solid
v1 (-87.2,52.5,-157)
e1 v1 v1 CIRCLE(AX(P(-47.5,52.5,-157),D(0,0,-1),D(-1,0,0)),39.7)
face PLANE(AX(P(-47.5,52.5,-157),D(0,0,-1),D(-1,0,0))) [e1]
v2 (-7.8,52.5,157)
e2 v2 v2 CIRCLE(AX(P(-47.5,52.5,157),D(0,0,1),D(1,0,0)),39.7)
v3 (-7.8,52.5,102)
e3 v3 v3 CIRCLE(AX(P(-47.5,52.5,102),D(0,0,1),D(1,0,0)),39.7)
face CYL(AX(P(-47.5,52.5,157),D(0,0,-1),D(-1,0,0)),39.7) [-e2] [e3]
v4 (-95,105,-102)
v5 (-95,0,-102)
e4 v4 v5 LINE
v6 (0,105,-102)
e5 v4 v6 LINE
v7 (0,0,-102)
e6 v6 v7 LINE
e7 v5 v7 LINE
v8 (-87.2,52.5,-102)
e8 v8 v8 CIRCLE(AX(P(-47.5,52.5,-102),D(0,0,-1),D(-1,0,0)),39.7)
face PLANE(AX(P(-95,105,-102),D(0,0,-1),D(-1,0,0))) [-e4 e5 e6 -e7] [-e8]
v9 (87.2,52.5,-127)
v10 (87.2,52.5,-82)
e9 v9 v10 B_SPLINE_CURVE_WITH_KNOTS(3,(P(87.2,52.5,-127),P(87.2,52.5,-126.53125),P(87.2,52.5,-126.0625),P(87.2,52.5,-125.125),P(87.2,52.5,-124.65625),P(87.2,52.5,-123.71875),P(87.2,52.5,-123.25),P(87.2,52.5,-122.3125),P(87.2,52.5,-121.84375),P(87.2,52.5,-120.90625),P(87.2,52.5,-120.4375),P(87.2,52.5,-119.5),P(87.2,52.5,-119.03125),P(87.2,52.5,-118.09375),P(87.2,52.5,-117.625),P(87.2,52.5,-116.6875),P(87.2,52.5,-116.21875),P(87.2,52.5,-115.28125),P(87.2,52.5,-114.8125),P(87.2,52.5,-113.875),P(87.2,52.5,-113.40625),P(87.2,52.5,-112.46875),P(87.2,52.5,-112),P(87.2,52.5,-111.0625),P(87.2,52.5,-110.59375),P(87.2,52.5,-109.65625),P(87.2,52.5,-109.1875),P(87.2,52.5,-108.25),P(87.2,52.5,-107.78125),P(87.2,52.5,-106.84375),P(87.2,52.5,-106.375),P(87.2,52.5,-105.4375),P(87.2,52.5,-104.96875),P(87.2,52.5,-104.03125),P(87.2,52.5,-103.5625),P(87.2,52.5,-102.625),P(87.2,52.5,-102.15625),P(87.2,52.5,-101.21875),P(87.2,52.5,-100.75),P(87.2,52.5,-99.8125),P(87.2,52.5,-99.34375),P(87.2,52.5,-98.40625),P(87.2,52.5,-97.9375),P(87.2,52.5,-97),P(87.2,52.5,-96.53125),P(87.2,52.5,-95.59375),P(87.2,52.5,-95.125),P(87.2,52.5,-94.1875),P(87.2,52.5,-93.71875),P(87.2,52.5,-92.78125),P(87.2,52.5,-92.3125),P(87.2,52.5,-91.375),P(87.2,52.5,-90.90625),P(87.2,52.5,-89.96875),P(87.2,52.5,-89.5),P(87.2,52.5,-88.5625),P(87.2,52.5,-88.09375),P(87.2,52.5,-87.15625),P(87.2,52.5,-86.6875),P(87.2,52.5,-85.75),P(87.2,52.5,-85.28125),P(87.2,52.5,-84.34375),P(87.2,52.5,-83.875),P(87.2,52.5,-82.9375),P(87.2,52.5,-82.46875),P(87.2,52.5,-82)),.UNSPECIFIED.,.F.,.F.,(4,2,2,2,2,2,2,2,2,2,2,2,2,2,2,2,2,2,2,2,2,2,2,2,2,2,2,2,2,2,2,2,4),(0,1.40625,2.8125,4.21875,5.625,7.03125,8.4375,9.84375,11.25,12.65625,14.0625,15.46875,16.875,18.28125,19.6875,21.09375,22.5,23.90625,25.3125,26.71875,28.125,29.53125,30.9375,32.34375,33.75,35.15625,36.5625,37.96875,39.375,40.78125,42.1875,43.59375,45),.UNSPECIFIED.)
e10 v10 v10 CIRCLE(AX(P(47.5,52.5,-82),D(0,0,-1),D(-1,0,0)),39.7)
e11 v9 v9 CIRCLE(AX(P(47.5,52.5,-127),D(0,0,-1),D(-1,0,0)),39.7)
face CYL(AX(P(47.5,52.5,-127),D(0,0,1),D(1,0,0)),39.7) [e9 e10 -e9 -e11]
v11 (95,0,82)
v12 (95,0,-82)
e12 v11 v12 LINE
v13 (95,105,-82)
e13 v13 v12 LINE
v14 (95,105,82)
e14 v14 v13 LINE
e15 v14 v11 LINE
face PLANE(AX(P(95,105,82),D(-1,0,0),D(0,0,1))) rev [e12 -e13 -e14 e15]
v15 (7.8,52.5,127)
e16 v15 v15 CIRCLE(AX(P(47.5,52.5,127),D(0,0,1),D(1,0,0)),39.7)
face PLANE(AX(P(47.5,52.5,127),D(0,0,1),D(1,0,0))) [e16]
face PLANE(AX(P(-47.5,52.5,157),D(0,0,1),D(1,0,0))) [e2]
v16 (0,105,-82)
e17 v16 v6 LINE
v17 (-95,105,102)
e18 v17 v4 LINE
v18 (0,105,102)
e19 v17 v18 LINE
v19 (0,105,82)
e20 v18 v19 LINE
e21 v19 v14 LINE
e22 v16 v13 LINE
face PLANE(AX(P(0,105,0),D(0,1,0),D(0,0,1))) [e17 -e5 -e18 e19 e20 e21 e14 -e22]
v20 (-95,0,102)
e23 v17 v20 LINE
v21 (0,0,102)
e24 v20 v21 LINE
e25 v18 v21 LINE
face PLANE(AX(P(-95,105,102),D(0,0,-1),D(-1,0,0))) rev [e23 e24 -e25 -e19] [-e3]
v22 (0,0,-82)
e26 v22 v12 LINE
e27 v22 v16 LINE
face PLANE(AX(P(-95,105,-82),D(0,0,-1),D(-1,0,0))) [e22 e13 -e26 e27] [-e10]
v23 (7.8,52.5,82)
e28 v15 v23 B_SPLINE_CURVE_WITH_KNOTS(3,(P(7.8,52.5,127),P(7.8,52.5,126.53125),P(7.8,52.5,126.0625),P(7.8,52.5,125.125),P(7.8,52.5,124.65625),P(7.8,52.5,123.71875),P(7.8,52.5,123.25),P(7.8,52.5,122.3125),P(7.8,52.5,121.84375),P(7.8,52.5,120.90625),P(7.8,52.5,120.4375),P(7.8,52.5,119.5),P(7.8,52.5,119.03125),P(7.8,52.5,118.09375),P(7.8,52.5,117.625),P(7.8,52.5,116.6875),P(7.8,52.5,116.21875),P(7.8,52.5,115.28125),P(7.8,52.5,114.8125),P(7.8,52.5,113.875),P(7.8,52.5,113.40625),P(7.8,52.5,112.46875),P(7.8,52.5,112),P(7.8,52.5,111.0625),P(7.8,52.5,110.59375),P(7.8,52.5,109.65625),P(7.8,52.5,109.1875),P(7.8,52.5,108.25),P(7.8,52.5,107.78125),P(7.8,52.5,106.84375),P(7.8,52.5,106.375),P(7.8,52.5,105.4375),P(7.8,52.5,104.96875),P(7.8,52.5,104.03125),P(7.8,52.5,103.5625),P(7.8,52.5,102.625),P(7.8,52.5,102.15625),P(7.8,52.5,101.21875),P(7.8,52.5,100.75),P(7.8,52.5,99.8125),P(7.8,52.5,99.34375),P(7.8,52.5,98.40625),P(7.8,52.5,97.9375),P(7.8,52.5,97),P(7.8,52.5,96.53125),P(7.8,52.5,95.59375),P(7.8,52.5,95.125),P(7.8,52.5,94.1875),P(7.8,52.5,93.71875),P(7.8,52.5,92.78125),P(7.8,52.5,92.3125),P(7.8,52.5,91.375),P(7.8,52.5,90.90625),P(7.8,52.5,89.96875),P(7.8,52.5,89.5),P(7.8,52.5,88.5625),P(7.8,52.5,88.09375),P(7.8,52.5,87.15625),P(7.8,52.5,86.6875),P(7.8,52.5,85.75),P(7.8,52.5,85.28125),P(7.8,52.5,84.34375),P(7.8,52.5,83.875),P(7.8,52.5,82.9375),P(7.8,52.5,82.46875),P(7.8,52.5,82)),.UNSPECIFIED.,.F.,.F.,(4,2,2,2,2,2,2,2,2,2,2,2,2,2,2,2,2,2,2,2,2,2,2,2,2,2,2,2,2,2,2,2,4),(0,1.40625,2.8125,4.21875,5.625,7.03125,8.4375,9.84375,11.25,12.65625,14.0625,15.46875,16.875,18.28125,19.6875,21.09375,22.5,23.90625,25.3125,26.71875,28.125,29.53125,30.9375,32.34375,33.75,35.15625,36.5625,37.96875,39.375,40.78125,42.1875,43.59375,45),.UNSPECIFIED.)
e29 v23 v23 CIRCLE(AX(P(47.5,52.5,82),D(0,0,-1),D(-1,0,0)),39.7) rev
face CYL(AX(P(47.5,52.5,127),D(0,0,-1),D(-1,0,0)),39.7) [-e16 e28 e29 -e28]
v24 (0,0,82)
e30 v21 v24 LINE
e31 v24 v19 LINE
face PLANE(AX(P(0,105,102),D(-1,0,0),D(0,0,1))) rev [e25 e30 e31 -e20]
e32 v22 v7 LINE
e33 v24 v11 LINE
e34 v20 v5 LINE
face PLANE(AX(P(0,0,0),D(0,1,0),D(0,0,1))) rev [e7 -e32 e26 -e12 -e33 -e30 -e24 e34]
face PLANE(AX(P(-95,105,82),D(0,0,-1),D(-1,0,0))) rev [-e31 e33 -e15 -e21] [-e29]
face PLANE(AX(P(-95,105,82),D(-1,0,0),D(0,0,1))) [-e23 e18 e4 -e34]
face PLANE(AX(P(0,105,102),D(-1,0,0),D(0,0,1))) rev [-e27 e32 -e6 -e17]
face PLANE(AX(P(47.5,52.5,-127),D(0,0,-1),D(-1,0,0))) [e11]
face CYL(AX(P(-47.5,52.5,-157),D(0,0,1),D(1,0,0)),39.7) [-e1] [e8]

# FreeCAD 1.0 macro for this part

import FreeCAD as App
import Part
import Sketcher

doc = App.newDocument("Part")
body = doc.addObject("PartDesign::Body", "Body")

# Sketch on XZ plane
sketch1 = body.newObject("Sketcher::SketchObject", "Sketch")
sketch1.AttachmentSupport = (doc.getObject("XZ_Plane"), [""])
sketch1.MapMode = "FlatFace"
sketch1.addGeometry([
    Part.LineSegment(App.Vector(-95, -82, 0), App.Vector(-95, 82, 0)),
    Part.LineSegment(App.Vector(-95, 82, 0), App.Vector(95, 82, 0)),
    Part.LineSegment(App.Vector(95, 82, 0), App.Vector(95, -82, 0)),
    Part.LineSegment(App.Vector(95, -82, 0), App.Vector(-95, -82, 0)),
], False)
sketch1.addConstraint([
    Sketcher.Constraint("Coincident", 0, 2, 1, 1),
    Sketcher.Constraint("Coincident", 1, 2, 2, 1),
    Sketcher.Constraint("Coincident", 2, 2, 3, 1),
    Sketcher.Constraint("Coincident", 3, 2, 0, 1),
    Sketcher.Constraint("Vertical", 0),
    Sketcher.Constraint("Horizontal", 1),
    Sketcher.Constraint("Vertical", 2),
    Sketcher.Constraint("Horizontal", 3),
    Sketcher.Constraint("Symmetric", 0, 2, 2, 2, -1, 1),
    Sketcher.Constraint("DistanceX", 1, 1, 1, 2, 190.0),
    Sketcher.Constraint("DistanceY", 0, 1, 0, 2, 164.0),
])
pad1 = body.newObject("PartDesign::Pad", "Pad")
pad1.Profile = sketch1
pad1.Length = 105
pad1.Reversed = True

# Sketch on XZ plane
sketch2 = body.newObject("Sketcher::SketchObject", "Sketch001")
sketch2.AttachmentSupport = (doc.getObject("XZ_Plane"), [""])
sketch2.MapMode = "FlatFace"
sketch2.addGeometry([
    Part.LineSegment(App.Vector(-95, -102, 0), App.Vector(-95, 102, 0)),
    Part.LineSegment(App.Vector(-95, 102, 0), App.Vector(0, 102, 0)),
    Part.LineSegment(App.Vector(0, 102, 0), App.Vector(0, -102, 0)),
    Part.LineSegment(App.Vector(0, -102, 0), App.Vector(-95, -102, 0)),
], False)
sketch2.addConstraint([
    Sketcher.Constraint("Coincident", 0, 2, 1, 1),
    Sketcher.Constraint("Coincident", 1, 2, 2, 1),
    Sketcher.Constraint("Coincident", 2, 2, 3, 1),
    Sketcher.Constraint("Coincident", 3, 2, 0, 1),
    Sketcher.Constraint("Vertical", 0),
    Sketcher.Constraint("Horizontal", 1),
    Sketcher.Constraint("Vertical", 2),
    Sketcher.Constraint("Horizontal", 3),
    Sketcher.Constraint("Symmetric", 1, 2, 2, 2, -1, 1),
    Sketcher.Constraint("DistanceX", 1, 1, 1, 2, 95.0),
    Sketcher.Constraint("DistanceY", 0, 1, 0, 2, 204.0),
])
pad2 = body.newObject("PartDesign::Pad", "Pad001")
pad2.Profile = sketch2
pad2.Length = 105
pad2.Reversed = True

# Sketch on XY plane
sketch3 = body.newObject("Sketcher::SketchObject", "Sketch002")
sketch3.AttachmentSupport = (doc.getObject("XY_Plane"), [""])
sketch3.MapMode = "FlatFace"
sketch3.AttachmentOffset = App.Placement(App.Vector(0, 0, 102), App.Rotation())
sketch3.addGeometry(Part.Circle(App.Vector(-48, 52, 0), App.Vector(0, 0, 1), 40), False)
sketch3.addConstraint([
    Sketcher.Constraint("Diameter", 0, 79.4),
    Sketcher.Constraint("DistanceX", 0, 3, -1, 1, 47.5),
    Sketcher.Constraint("DistanceY", -1, 1, 0, 3, 52.5),
])
pad3 = body.newObject("PartDesign::Pad", "Pad002")
pad3.Profile = sketch3
pad3.Length = 55

# Sketch on XY plane
sketch4 = body.newObject("Sketcher::SketchObject", "Sketch003")
sketch4.AttachmentSupport = (doc.getObject("XY_Plane"), [""])
sketch4.MapMode = "FlatFace"
sketch4.AttachmentOffset = App.Placement(App.Vector(0, 0, 82), App.Rotation())
sketch4.addGeometry(Part.Circle(App.Vector(48, 52, 0), App.Vector(0, 0, 1), 40), False)
sketch4.addConstraint([
    Sketcher.Constraint("Diameter", 0, 79.4),
    Sketcher.Constraint("DistanceX", -1, 1, 0, 3, 47.5),
    Sketcher.Constraint("DistanceY", -1, 1, 0, 3, 52.5),
])
pad4 = body.newObject("PartDesign::Pad", "Pad003")
pad4.Profile = sketch4
pad4.Length = 45

# Sketch on XY plane
sketch5 = body.newObject("Sketcher::SketchObject", "Sketch004")
sketch5.AttachmentSupport = (doc.getObject("XY_Plane"), [""])
sketch5.MapMode = "FlatFace"
sketch5.AttachmentOffset = App.Placement(App.Vector(0, 0, -157), App.Rotation())
sketch5.addGeometry(Part.Circle(App.Vector(-48, 52, 0), App.Vector(0, 0, 1), 40), False)
sketch5.addConstraint([
    Sketcher.Constraint("Diameter", 0, 79.4),
    Sketcher.Constraint("DistanceX", 0, 3, -1, 1, 47.5),
    Sketcher.Constraint("DistanceY", -1, 1, 0, 3, 52.5),
])
pad5 = body.newObject("PartDesign::Pad", "Pad004")
pad5.Profile = sketch5
pad5.Length = 55

# Sketch on XY plane
sketch6 = body.newObject("Sketcher::SketchObject", "Sketch005")
sketch6.AttachmentSupport = (doc.getObject("XY_Plane"), [""])
sketch6.MapMode = "FlatFace"
sketch6.AttachmentOffset = App.Placement(App.Vector(0, 0, -127), App.Rotation())
sketch6.addGeometry(Part.Circle(App.Vector(48, 52, 0), App.Vector(0, 0, 1), 40), False)
sketch6.addConstraint([
    Sketcher.Constraint("Diameter", 0, 79.4),
    Sketcher.Constraint("DistanceX", -1, 1, 0, 3, 47.5),
    Sketcher.Constraint("DistanceY", -1, 1, 0, 3, 52.5),
])
pad6 = body.newObject("PartDesign::Pad", "Pad005")
pad6.Profile = sketch6
pad6.Length = 45

doc.recompute()
